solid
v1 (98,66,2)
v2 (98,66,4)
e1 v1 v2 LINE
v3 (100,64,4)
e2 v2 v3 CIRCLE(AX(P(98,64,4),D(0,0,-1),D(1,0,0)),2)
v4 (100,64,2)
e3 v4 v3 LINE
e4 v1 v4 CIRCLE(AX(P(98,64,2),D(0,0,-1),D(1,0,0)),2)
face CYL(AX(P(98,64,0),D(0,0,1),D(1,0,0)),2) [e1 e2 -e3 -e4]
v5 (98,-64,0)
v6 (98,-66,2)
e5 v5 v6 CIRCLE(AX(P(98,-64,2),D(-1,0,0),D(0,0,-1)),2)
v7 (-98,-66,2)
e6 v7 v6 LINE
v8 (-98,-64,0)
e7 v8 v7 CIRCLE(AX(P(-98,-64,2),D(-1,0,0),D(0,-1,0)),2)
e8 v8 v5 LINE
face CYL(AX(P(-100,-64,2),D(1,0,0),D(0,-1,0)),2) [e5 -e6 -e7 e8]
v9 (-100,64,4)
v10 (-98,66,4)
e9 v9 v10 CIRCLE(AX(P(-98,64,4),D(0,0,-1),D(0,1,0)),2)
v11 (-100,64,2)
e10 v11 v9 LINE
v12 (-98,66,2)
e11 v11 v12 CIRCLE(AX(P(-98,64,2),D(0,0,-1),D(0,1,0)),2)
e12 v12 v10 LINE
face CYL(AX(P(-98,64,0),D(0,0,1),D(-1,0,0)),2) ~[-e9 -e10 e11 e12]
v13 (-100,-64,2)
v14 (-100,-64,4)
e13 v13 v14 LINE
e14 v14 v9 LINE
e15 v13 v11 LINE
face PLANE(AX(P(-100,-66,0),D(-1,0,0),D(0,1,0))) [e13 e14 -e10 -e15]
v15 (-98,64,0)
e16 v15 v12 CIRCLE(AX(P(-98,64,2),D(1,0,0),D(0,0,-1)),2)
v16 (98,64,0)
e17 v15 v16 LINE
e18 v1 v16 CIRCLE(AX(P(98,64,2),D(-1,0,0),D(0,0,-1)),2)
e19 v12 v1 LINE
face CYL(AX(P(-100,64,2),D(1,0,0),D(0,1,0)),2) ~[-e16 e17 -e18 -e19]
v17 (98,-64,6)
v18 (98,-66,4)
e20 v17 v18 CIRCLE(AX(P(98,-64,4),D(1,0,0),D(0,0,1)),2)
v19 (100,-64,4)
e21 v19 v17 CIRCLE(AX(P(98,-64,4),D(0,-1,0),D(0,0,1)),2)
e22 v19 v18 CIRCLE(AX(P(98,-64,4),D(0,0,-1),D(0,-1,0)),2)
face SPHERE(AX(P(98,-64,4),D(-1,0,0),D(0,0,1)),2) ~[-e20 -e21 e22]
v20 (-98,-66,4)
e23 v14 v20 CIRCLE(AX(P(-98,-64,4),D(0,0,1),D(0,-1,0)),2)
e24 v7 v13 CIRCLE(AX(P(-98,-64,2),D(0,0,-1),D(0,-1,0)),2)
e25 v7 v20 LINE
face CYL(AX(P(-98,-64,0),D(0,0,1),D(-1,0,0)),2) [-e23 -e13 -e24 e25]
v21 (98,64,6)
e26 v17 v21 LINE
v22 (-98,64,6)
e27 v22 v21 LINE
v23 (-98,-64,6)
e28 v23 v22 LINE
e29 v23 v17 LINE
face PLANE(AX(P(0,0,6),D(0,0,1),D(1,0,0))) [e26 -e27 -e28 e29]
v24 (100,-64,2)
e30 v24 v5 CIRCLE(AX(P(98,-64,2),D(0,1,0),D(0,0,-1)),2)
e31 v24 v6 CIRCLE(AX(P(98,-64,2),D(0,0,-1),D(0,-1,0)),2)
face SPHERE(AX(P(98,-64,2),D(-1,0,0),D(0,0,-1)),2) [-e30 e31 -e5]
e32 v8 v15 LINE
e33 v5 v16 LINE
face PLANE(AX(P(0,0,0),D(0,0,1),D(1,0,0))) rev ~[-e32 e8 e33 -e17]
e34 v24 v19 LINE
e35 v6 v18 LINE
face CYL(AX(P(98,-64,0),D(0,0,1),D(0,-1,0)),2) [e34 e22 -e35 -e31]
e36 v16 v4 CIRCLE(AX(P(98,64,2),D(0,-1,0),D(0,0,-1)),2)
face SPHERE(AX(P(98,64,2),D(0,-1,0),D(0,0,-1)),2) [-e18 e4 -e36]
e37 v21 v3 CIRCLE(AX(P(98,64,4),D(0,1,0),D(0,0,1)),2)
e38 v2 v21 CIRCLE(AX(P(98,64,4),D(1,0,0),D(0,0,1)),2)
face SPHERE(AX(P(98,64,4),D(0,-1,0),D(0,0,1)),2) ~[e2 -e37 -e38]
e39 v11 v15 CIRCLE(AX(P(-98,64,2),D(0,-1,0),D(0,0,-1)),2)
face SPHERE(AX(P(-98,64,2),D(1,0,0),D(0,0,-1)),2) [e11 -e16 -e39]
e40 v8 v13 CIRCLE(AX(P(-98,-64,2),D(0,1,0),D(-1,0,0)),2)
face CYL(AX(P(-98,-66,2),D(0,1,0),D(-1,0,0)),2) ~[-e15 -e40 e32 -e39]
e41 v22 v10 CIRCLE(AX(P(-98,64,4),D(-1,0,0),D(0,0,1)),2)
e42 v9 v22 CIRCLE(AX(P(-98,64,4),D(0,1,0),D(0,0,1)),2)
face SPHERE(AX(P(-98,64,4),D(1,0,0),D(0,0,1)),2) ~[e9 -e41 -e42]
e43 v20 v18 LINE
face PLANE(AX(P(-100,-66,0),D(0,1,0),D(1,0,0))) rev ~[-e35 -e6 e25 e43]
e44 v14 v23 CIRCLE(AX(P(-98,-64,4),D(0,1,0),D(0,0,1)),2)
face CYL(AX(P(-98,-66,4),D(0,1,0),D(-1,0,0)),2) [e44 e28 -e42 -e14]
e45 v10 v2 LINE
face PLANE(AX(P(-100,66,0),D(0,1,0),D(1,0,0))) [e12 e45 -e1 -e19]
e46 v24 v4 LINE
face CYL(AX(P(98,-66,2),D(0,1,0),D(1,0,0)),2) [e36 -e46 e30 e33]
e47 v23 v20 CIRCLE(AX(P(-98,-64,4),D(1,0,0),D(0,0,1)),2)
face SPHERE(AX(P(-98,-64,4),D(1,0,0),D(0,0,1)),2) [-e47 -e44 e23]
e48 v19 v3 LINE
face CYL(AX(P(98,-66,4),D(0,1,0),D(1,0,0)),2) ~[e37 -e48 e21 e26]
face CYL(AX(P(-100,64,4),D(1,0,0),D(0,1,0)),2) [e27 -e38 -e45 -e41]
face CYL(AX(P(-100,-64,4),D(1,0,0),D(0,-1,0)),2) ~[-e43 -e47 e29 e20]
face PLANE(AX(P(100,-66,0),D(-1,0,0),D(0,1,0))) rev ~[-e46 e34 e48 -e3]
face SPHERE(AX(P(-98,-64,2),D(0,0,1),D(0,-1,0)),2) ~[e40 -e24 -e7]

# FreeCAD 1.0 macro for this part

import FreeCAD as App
import Part
import Sketcher
from FreeCAD import Vector
Q = App.Units.Quantity

doc = App.newDocument("Part")
body = doc.addObject("PartDesign::Body", "Body")

sketch1 = body.newObject("Sketcher::SketchObject", "Sketch")
sketch1.AttachmentSupport = (doc.getObject("XY_Plane"), [""])
sketch1.MapMode = "FlatFace"
sketch1.addGeometry([
    Part.LineSegment(Vector(-100, 66, 0), Vector(-100, -66, 0)),
    Part.LineSegment(Vector(-100, -66, 0), Vector(100, -66, 0)),
    Part.LineSegment(Vector(100, -66, 0), Vector(100, 66, 0)),
    Part.LineSegment(Vector(100, 66, 0), Vector(-100, 66, 0)),
], False)
sketch1.addConstraint([
    Sketcher.Constraint("Coincident", 0, 2, 1, 1),
    Sketcher.Constraint("Coincident", 1, 2, 2, 1),
    Sketcher.Constraint("Coincident", 2, 2, 3, 1),
    Sketcher.Constraint("Coincident", 3, 2, 0, 1),
    Sketcher.Constraint("Vertical", 0),
    Sketcher.Constraint("Horizontal", 1),
    Sketcher.Constraint("Vertical", 2),
    Sketcher.Constraint("Horizontal", 3),
    Sketcher.Constraint("Symmetric", 0, 2, 2, 2, -1, 1),
    Sketcher.Constraint("DistanceX", 1, 1, 1, 2, Q("200 mm")),
    Sketcher.Constraint("DistanceY", 0, 2, 0, 1, Q("132 mm")),
])
pad1 = body.newObject("PartDesign::Pad", "Pad")
pad1.Profile = sketch1
pad1.Length = 6
doc.recompute()

fillet = body.newObject("PartDesign::Fillet", "Fillet")
fillet.Base = (pad1, ["Edge1"])
fillet.UseAllEdges = True
fillet.Radius = 2

doc.recompute()
